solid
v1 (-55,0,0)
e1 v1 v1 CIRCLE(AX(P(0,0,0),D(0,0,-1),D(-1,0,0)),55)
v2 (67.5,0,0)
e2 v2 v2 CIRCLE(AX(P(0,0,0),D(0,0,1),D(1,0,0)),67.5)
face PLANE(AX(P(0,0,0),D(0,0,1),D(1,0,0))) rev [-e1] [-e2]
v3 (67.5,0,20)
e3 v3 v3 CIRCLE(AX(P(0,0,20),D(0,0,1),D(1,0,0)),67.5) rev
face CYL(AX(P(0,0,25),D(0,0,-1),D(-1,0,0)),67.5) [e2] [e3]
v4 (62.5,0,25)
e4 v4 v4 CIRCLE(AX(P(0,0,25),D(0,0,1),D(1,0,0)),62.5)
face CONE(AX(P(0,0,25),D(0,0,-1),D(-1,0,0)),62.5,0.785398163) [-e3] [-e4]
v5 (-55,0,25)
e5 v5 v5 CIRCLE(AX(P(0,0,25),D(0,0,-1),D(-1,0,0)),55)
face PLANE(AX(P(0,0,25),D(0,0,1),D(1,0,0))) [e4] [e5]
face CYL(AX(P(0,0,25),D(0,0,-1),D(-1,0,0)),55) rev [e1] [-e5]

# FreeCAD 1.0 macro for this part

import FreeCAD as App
import Part
import Sketcher
from FreeCAD import Vector


def edges_at(feature, points):
    """Names of the edges that pass closest to the given points."""
    edges = feature.Shape.Edges
    near = lambda p: min(range(len(edges)), key=lambda i: edges[i].distToShape(Part.Vertex(*p))[0])
    return sorted({f"Edge{near(p) + 1}" for p in points})

doc = App.newDocument("Part")
params = doc.addObject("Spreadsheet::Sheet", "Params")
for row, (alias, value) in enumerate([
    ("sketch1_diameter", "135 mm"),
    ("pad1_length", "25 mm"),
    ("chamfer_size", "5 mm"),
    ("sketch2_diameter", "110 mm"),
], start=1):
    params.set(f"A{row}", alias)
    params.set(f"B{row}", "=" + value)
    params.setAlias(f"B{row}", alias)

body = doc.addObject("PartDesign::Body", "Body")

sketch1 = doc.addObject("Sketcher::SketchObject", "Sketch")
body.addObject(sketch1)
sketch1.AttachmentSupport = (doc.XY_Plane, [""])
sketch1.MapMode = "FlatFace"
sketch1.addGeometry(Part.Circle(Vector(0, 0, 0), Vector(0, 0, 1), 68), False)
sketch1.addConstraint([
    Sketcher.Constraint("Coincident", 0, 3, -1, 1),
    Sketcher.Constraint("Diameter", 0, 135.0),
])
sketch1.setExpression("Constraints[1]", "Params.sketch1_diameter")
pad1 = doc.addObject("PartDesign::Pad", "Pad")
body.addObject(pad1)
pad1.Profile = sketch1
pad1.setExpression("Length", "Params.pad1_length")
doc.recompute()

chamfer = doc.addObject("PartDesign::Chamfer", "Chamfer")
body.addObject(chamfer)
chamfer.Base = (pad1, edges_at(pad1, [(-67.5, 0, 25)]))
chamfer.setExpression("Size", "Params.chamfer_size")

sketch2 = doc.addObject("Sketcher::SketchObject", "Sketch001")
body.addObject(sketch2)
sketch2.AttachmentSupport = (doc.XY_Plane, [""])
sketch2.MapMode = "FlatFace"
sketch2.addGeometry(Part.Circle(Vector(0, 0, 0), Vector(0, 0, 1), 55), False)
sketch2.addConstraint([
    Sketcher.Constraint("Coincident", 0, 3, -1, 1),
    Sketcher.Constraint("Diameter", 0, 110.0),
])
sketch2.setExpression("Constraints[1]", "Params.sketch2_diameter")
pocket1 = doc.addObject("PartDesign::Pocket", "Pocket")
body.addObject(pocket1)
pocket1.Profile = sketch2
pocket1.Type = "ThroughAll"
pocket1.Reversed = True

doc.recompute()
